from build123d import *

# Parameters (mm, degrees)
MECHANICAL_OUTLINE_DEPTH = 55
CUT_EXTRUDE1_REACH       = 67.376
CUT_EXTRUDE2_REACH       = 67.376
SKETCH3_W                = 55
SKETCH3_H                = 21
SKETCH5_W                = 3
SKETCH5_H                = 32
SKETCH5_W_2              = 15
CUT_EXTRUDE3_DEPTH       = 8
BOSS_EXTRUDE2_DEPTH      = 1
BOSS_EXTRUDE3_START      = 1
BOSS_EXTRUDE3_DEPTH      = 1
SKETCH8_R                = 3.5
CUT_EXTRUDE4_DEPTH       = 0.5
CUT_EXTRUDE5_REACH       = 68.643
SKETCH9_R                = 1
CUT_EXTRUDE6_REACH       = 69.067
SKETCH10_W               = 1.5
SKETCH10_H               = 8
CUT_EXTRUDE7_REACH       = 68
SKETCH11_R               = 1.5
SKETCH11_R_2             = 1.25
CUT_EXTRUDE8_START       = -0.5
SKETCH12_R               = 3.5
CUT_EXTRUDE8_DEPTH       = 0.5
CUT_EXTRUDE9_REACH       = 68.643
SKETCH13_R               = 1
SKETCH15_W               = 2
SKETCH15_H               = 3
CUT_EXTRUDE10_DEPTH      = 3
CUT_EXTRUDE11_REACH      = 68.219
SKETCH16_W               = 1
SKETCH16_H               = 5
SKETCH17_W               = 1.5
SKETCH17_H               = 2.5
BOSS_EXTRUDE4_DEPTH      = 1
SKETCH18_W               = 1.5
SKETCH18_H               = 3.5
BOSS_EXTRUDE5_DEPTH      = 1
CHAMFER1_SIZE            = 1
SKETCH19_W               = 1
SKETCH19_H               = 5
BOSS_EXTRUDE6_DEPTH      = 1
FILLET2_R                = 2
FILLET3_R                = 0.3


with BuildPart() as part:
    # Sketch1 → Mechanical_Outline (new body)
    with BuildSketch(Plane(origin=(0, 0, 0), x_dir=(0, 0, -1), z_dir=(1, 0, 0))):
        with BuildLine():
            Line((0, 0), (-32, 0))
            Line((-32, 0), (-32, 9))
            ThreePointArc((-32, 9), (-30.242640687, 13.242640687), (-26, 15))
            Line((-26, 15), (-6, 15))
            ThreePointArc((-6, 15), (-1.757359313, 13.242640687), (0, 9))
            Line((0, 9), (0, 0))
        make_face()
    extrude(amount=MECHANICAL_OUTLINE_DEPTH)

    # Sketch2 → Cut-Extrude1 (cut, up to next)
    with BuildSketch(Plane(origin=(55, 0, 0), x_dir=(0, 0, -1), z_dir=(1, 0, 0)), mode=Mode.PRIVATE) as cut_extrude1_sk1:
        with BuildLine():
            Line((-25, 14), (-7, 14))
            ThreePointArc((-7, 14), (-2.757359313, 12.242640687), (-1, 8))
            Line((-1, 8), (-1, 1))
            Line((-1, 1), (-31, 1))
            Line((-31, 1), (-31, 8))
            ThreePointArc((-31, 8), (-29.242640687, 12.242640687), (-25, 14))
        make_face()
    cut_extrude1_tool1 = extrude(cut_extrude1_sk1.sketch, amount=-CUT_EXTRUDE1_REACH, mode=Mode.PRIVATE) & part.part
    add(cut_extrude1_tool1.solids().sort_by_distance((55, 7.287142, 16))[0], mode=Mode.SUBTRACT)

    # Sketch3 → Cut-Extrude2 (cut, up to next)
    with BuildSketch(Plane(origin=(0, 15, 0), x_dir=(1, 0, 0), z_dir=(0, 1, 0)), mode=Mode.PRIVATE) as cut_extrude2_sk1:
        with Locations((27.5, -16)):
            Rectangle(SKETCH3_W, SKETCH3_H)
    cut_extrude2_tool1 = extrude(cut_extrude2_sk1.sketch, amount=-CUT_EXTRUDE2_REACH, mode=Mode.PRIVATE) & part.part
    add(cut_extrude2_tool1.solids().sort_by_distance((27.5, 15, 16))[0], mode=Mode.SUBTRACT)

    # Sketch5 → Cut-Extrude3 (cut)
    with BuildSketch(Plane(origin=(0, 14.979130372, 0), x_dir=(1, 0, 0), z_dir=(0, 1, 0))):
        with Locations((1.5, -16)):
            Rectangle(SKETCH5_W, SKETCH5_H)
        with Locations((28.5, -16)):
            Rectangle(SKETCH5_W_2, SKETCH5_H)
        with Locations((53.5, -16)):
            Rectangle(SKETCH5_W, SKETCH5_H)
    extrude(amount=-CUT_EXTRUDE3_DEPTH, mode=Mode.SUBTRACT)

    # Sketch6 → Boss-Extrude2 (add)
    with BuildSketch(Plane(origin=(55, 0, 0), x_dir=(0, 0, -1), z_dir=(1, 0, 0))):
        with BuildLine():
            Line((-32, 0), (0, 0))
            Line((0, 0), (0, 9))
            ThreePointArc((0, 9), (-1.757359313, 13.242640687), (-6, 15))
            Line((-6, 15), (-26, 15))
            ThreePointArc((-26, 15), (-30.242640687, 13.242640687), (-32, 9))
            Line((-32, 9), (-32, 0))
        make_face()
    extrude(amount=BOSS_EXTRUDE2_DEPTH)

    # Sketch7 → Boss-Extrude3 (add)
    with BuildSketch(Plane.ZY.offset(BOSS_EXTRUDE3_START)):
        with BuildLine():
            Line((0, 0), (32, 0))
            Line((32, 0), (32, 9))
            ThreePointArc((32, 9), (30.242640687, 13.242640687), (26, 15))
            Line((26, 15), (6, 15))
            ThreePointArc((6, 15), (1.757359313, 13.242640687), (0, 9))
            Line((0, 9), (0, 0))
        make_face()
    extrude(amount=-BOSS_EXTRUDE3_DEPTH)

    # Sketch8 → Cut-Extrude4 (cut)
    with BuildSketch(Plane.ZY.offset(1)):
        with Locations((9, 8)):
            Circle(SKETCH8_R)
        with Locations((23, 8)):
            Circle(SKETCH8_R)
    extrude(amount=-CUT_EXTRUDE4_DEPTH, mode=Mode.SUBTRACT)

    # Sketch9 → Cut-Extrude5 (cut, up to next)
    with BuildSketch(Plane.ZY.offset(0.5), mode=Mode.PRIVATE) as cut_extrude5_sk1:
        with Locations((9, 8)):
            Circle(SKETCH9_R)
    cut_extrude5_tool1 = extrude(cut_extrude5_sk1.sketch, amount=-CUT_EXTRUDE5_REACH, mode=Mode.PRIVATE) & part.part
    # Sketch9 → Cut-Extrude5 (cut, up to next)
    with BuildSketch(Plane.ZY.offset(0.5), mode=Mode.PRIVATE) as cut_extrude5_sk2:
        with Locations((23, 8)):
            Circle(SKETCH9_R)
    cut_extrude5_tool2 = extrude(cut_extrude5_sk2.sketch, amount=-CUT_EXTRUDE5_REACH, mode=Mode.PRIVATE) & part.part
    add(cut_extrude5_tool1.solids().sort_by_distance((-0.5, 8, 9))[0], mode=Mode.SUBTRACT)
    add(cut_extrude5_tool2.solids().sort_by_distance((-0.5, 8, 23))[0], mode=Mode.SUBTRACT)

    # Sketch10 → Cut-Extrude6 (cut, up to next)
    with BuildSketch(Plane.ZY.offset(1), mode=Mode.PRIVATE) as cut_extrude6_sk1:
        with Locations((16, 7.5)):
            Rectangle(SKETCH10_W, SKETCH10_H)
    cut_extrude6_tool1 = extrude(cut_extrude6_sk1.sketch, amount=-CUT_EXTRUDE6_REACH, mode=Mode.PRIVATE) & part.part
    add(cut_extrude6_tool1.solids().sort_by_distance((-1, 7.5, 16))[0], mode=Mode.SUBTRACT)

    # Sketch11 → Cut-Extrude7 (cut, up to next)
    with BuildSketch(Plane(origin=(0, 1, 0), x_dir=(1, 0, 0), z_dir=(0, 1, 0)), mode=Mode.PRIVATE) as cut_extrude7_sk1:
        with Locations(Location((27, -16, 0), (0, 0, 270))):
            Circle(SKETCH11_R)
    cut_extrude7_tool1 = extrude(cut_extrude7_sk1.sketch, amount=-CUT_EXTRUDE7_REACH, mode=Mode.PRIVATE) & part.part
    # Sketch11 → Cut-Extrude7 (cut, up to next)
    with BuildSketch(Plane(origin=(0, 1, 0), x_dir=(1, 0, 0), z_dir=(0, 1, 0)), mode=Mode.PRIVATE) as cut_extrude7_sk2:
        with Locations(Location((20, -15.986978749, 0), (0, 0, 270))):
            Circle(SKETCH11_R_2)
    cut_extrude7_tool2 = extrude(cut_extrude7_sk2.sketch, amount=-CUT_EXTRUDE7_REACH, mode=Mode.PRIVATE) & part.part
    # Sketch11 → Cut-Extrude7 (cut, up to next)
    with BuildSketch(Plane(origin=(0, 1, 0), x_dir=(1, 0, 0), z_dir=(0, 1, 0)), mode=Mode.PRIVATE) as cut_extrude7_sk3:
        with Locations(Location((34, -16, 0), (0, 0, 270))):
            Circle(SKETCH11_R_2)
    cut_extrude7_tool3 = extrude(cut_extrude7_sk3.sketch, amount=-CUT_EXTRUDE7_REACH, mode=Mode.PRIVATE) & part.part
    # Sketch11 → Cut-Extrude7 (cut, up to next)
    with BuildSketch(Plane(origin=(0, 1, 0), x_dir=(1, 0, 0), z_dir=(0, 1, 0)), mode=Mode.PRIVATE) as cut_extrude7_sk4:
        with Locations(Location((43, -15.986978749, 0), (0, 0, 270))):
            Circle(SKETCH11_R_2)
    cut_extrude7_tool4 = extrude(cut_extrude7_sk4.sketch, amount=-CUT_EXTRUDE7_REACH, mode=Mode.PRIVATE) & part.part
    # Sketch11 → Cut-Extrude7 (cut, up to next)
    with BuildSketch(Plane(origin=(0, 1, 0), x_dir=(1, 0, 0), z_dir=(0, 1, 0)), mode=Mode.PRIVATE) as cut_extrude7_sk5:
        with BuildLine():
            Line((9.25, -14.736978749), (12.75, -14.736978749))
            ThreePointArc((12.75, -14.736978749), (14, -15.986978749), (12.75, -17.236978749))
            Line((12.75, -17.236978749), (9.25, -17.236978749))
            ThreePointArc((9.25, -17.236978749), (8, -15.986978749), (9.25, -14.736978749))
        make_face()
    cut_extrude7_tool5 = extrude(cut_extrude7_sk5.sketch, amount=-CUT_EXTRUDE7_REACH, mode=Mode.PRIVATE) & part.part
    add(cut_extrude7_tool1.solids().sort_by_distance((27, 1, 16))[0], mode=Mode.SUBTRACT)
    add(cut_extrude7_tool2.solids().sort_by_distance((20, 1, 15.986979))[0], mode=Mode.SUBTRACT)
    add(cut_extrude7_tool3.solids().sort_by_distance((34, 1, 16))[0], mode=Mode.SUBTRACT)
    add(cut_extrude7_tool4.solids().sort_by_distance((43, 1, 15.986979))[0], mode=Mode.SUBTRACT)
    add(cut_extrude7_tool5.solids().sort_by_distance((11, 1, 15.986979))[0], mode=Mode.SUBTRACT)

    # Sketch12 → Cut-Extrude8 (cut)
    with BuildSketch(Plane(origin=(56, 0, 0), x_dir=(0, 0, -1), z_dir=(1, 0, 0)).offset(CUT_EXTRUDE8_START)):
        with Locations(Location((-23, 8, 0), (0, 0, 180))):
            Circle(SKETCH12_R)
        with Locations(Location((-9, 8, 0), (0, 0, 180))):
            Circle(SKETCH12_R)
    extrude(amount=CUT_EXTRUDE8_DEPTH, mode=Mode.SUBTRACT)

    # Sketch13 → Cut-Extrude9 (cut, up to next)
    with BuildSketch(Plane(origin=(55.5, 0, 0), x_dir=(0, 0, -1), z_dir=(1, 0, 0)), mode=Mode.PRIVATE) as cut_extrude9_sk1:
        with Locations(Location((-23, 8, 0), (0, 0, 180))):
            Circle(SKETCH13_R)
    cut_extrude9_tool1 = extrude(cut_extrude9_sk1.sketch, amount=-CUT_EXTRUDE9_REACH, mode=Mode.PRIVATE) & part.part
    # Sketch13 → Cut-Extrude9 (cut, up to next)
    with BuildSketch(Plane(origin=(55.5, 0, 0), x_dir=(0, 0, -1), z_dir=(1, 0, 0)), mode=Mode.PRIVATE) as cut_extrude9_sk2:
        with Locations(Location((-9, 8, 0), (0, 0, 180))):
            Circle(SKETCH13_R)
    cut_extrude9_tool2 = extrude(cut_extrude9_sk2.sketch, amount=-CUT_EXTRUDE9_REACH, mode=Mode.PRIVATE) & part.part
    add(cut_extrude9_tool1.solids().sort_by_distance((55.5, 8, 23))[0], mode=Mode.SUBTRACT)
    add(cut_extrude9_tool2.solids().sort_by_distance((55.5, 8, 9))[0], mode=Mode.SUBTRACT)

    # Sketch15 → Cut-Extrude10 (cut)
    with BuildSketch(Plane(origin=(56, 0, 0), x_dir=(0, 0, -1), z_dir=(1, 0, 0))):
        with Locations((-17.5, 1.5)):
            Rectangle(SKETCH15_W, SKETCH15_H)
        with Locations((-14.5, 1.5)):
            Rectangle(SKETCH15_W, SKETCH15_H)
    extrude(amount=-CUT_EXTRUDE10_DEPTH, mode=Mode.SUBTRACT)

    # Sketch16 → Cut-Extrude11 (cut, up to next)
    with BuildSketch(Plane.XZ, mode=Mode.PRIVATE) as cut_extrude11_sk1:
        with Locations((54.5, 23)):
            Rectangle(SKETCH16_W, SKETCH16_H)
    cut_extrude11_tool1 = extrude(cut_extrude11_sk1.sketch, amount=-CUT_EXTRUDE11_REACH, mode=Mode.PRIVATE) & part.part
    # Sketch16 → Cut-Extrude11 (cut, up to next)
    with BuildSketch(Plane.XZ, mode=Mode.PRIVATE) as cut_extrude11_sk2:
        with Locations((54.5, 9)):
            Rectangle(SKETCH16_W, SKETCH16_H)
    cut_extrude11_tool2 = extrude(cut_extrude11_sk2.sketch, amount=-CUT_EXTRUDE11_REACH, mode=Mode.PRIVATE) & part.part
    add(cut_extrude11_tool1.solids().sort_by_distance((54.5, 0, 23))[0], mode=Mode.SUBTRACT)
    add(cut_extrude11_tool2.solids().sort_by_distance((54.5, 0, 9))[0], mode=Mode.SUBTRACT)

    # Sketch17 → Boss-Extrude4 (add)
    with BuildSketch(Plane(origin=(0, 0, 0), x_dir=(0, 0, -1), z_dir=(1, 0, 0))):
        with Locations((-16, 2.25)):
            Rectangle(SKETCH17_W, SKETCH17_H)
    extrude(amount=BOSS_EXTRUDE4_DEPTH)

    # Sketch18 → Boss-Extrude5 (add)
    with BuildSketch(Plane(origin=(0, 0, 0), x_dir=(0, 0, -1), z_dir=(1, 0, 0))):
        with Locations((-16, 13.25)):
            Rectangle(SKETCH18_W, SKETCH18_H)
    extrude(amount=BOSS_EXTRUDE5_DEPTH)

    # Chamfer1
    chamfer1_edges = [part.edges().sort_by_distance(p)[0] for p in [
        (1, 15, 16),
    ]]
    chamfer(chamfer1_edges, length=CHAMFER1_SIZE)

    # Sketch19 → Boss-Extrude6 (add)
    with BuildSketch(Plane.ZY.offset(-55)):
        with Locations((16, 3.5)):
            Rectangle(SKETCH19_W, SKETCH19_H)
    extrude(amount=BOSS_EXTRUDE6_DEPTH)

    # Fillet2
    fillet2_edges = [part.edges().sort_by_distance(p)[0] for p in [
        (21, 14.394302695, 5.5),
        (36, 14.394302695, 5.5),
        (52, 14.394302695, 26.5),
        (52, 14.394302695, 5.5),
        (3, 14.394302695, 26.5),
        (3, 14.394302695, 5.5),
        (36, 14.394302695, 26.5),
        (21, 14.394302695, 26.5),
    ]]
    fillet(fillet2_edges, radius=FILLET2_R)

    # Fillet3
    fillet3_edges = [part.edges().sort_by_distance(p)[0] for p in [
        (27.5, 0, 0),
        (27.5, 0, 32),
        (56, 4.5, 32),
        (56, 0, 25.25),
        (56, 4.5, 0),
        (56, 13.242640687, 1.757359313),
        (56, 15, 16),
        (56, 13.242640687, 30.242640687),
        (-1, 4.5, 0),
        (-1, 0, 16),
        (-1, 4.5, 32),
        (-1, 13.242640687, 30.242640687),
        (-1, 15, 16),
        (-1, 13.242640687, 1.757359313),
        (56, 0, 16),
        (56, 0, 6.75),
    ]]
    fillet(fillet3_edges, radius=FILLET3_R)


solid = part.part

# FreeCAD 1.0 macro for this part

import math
import FreeCAD as App
import Part
import Sketcher

V = App.Vector
Q = App.Units.Quantity


def edges_at(feature, points):
    """Names of the edges that pass closest to the given points."""
    edges = feature.Shape.Edges
    near = lambda p: min(range(len(edges)), key=lambda i: edges[i].distToShape(Part.Vertex(*p))[0])
    return sorted({f"Edge{near(p) + 1}" for p in points})


def add_polygon(sketch, points):
    """Adds a closed chain of lines whose ends are joined by coincident constraints."""
    first, n = sketch.GeometryCount, len(points)
    for a, b in zip(points, points[1:] + points[:1]):
        sketch.addGeometry(Part.LineSegment(App.Vector(*a, 0), App.Vector(*b, 0)), False)
    for i in range(n):
        sketch.addConstraint(Sketcher.Constraint("Coincident", first + i, 2, first + (i + 1) % n, 1))

doc = App.newDocument("Part")
body = doc.addObject("PartDesign::Body", "Body")

# Sketch on YZ plane
sketch1 = body.newObject("Sketcher::SketchObject", "Sketch")
sketch1.AttachmentSupport = (doc.getObject("YZ_Plane"), [""])
sketch1.MapMode = "FlatFace"
sketch1.addGeometry([
    Part.LineSegment(V(0, 32, 0), V(0, 0, 0)),  # 0
    Part.LineSegment(V(0, 0, 0), V(9, 0, 0)),  # 1
    Part.ArcOfCircle(Part.Circle(V(9, 6, 0), V(0, 0, 1), 6), math.radians(-90), math.radians(0)),  # 2
    Part.LineSegment(V(15, 6, 0), V(15, 26, 0)),  # 3
    Part.ArcOfCircle(Part.Circle(V(9, 26, 0), V(0, 0, 1), 6), math.radians(0), math.radians(90)),  # 4
    Part.LineSegment(V(9, 32, 0), V(0, 32, 0)),  # 5
], False)
sketch1.addConstraint([
    Sketcher.Constraint("Coincident", 0, 2, 1, 1),
    Sketcher.Constraint("Tangent", 1, 2, 2, 1),
    Sketcher.Constraint("Tangent", 2, 2, 3, 1),
    Sketcher.Constraint("Tangent", 3, 2, 4, 1),
    Sketcher.Constraint("Tangent", 4, 2, 5, 1),
    Sketcher.Constraint("Coincident", 5, 2, 0, 1),
    Sketcher.Constraint("Vertical", 0),
    Sketcher.Constraint("Horizontal", 1),
    Sketcher.Constraint("Vertical", 3),
    Sketcher.Constraint("Horizontal", 5),
    Sketcher.Constraint("Coincident", 0, 2, -1, 1),
    Sketcher.Constraint("Equal", 2, 4),
    Sketcher.Constraint("Radius", 2, Q("6 mm")),
    Sketcher.Constraint("DistanceX", 1, 1, 1, 2, Q("9 mm")),
    Sketcher.Constraint("DistanceY", 0, 2, 0, 1, Q("32 mm")),
])
pad1 = body.newObject("PartDesign::Pad", "Pad")
pad1.Profile = sketch1
pad1.Length = 55

# Sketch on YZ plane
sketch2 = body.newObject("Sketcher::SketchObject", "Sketch001")
sketch2.AttachmentSupport = (doc.getObject("YZ_Plane"), [""])
sketch2.MapMode = "FlatFace"
sketch2.AttachmentOffset = App.Placement(V(0, 0, 55), App.Rotation())
sketch2.addGeometry([
    Part.LineSegment(V(14, 7, 0), V(14, 25, 0)),  # 0
    Part.ArcOfCircle(Part.Circle(V(8, 25, 0), V(0, 0, 1), 6), math.radians(0), math.radians(90)),  # 1
    Part.LineSegment(V(8, 31, 0), V(1, 31, 0)),  # 2
    Part.LineSegment(V(1, 31, 0), V(1, 1, 0)),  # 3
    Part.LineSegment(V(1, 1, 0), V(8, 1, 0)),  # 4
    Part.ArcOfCircle(Part.Circle(V(8, 7, 0), V(0, 0, 1), 6), math.radians(-90), math.radians(0)),  # 5
], False)
sketch2.addConstraint([
    Sketcher.Constraint("Tangent", 0, 2, 1, 1),
    Sketcher.Constraint("Tangent", 1, 2, 2, 1),
    Sketcher.Constraint("Coincident", 2, 2, 3, 1),
    Sketcher.Constraint("Coincident", 3, 2, 4, 1),
    Sketcher.Constraint("Tangent", 4, 2, 5, 1),
    Sketcher.Constraint("Tangent", 5, 2, 0, 1),
    Sketcher.Constraint("Vertical", 0),
    Sketcher.Constraint("Horizontal", 2),
    Sketcher.Constraint("Vertical", 3),
    Sketcher.Constraint("Horizontal", 4),
    Sketcher.Constraint("Equal", 1, 5),
    Sketcher.Constraint("Radius", 1, Q("6 mm")),
    Sketcher.Constraint("DistanceX", 2, 2, 2, 1, Q("7 mm")),
    Sketcher.Constraint("DistanceY", 0, 1, 0, 2, Q("18 mm")),
    Sketcher.Constraint("DistanceX", -1, 1, 1, 3, Q("8 mm")),
    Sketcher.Constraint("DistanceY", -1, 1, 1, 3, Q("25 mm")),
])
pocket1 = body.newObject("PartDesign::Pocket", "Pocket")
pocket1.Profile = sketch2
pocket1.Type = "UpToFirst"

# Sketch on XZ plane
sketch3 = body.newObject("Sketcher::SketchObject", "Sketch002")
sketch3.AttachmentSupport = (doc.getObject("XZ_Plane"), [""])
sketch3.MapMode = "FlatFace"
sketch3.AttachmentOffset = App.Placement(V(0, 0, -15), App.Rotation())
add_polygon(sketch3, [(0, 6), (0, 26), (55, 26), (55, 6)])  # lines 0-3
sketch3.addConstraint([
    Sketcher.Constraint("Vertical", 0),
    Sketcher.Constraint("Horizontal", 1),
    Sketcher.Constraint("Vertical", 2),
    Sketcher.Constraint("Horizontal", 3),
    Sketcher.Constraint("PointOnObject", 0, 2, -2),
    Sketcher.Constraint("DistanceX", 1, 1, 1, 2, Q("55 mm")),
    Sketcher.Constraint("DistanceY", 0, 1, 0, 2, Q("21 mm")),
    Sketcher.Constraint("DistanceY", -1, 1, 0, 2, Q("26.5 mm")),
])
pocket2 = body.newObject("PartDesign::Pocket", "Pocket001")
pocket2.Profile = sketch3
pocket2.Length = 1.190525
pocket2.Reversed = True

# Sketch on XZ plane
sketch4 = body.newObject("Sketcher::SketchObject", "Sketch003")
sketch4.AttachmentSupport = (doc.getObject("XZ_Plane"), [""])
sketch4.MapMode = "FlatFace"
sketch4.AttachmentOffset = App.Placement(V(0, 0, -14.97913), App.Rotation())
add_polygon(sketch4, [(0, 0), (0, 32), (3, 32), (3, 0)])  # lines 0-3
add_polygon(sketch4, [(21, 0), (21, 32), (36, 32), (36, 0)])  # lines 4-7
add_polygon(sketch4, [(52, 0), (52, 32), (55, 32), (55, 0)])  # lines 8-11
sketch4.addConstraint([
    Sketcher.Constraint("Vertical", 0),
    Sketcher.Constraint("Horizontal", 1),
    Sketcher.Constraint("Vertical", 2),
    Sketcher.Constraint("Horizontal", 3),
    Sketcher.Constraint("Vertical", 4),
    Sketcher.Constraint("Horizontal", 5),
    Sketcher.Constraint("Vertical", 6),
    Sketcher.Constraint("Horizontal", 7),
    Sketcher.Constraint("Vertical", 8),
    Sketcher.Constraint("Horizontal", 9),
    Sketcher.Constraint("Vertical", 10),
    Sketcher.Constraint("Horizontal", 11),
    Sketcher.Constraint("Coincident", 3, 2, -1, 1),
    Sketcher.Constraint("PointOnObject", 6, 2, -1),
    Sketcher.Constraint("PointOnObject", 10, 2, -1),
    Sketcher.Constraint("Horizontal", 1, 2, 4, 2),
    Sketcher.Constraint("Horizontal", 5, 2, 8, 2),
    Sketcher.Constraint("Equal", 3, 9),
    Sketcher.Constraint("DistanceX", 1, 1, 1, 2, Q("3 mm")),
    Sketcher.Constraint("DistanceX", 5, 1, 5, 2, Q("15 mm")),
    Sketcher.Constraint("DistanceY", 0, 1, 0, 2, Q("32 mm")),
    Sketcher.Constraint("DistanceX", -1, 1, 4, 2, Q("21 mm")),
    Sketcher.Constraint("DistanceX", -1, 1, 8, 2, Q("52 mm")),
])
pocket3 = body.newObject("PartDesign::Pocket", "Pocket002")
pocket3.Profile = sketch4
pocket3.Length = 8
pocket3.Reversed = True

# Sketch on YZ plane
sketch5 = body.newObject("Sketcher::SketchObject", "Sketch004")
sketch5.AttachmentSupport = (doc.getObject("YZ_Plane"), [""])
sketch5.MapMode = "FlatFace"
sketch5.AttachmentOffset = App.Placement(V(0, 0, 55), App.Rotation())
sketch5.addGeometry([
    Part.LineSegment(V(0, 32, 0), V(0, 0, 0)),  # 0
    Part.LineSegment(V(0, 0, 0), V(9, 0, 0)),  # 1
    Part.ArcOfCircle(Part.Circle(V(9, 6, 0), V(0, 0, 1), 6), math.radians(-90), math.radians(0)),  # 2
    Part.LineSegment(V(15, 6, 0), V(15, 26, 0)),  # 3
    Part.ArcOfCircle(Part.Circle(V(9, 26, 0), V(0, 0, 1), 6), math.radians(0), math.radians(90)),  # 4
    Part.LineSegment(V(9, 32, 0), V(0, 32, 0)),  # 5
], False)
sketch5.addConstraint([
    Sketcher.Constraint("Coincident", 0, 2, 1, 1),
    Sketcher.Constraint("Tangent", 1, 2, 2, 1),
    Sketcher.Constraint("Tangent", 2, 2, 3, 1),
    Sketcher.Constraint("Tangent", 3, 2, 4, 1),
    Sketcher.Constraint("Tangent", 4, 2, 5, 1),
    Sketcher.Constraint("Coincident", 5, 2, 0, 1),
    Sketcher.Constraint("Vertical", 0),
    Sketcher.Constraint("Horizontal", 1),
    Sketcher.Constraint("Vertical", 3),
    Sketcher.Constraint("Horizontal", 5),
    Sketcher.Constraint("Coincident", 0, 2, -1, 1),
    Sketcher.Constraint("Equal", 2, 4),
    Sketcher.Constraint("Radius", 2, Q("6 mm")),
    Sketcher.Constraint("DistanceX", 1, 1, 1, 2, Q("9 mm")),
    Sketcher.Constraint("DistanceY", 0, 2, 0, 1, Q("32 mm")),
])
pad2 = body.newObject("PartDesign::Pad", "Pad001")
pad2.Profile = sketch5
pad2.Length = 1

# Sketch on YZ plane
sketch6 = body.newObject("Sketcher::SketchObject", "Sketch005")
sketch6.AttachmentSupport = (doc.getObject("YZ_Plane"), [""])
sketch6.MapMode = "FlatFace"
sketch6.AttachmentOffset = App.Placement(V(0, 0, -1), App.Rotation())
sketch6.addGeometry([
    Part.LineSegment(V(0, 0, 0), V(0, 32, 0)),  # 0
    Part.LineSegment(V(0, 32, 0), V(9, 32, 0)),  # 1
    Part.ArcOfCircle(Part.Circle(V(9, 26, 0), V(0, 0, 1), 6), math.radians(0), math.radians(90)),  # 2
    Part.LineSegment(V(15, 26, 0), V(15, 6, 0)),  # 3
    Part.ArcOfCircle(Part.Circle(V(9, 6, 0), V(0, 0, 1), 6), math.radians(-90), math.radians(0)),  # 4
    Part.LineSegment(V(9, 0, 0), V(0, 0, 0)),  # 5
], False)
sketch6.addConstraint([
    Sketcher.Constraint("Coincident", 0, 2, 1, 1),
    Sketcher.Constraint("Tangent", 1, 2, 2, 2),
    Sketcher.Constraint("Tangent", 2, 1, 3, 1),
    Sketcher.Constraint("Tangent", 3, 2, 4, 2),
    Sketcher.Constraint("Tangent", 4, 1, 5, 1),
    Sketcher.Constraint("Coincident", 5, 2, 0, 1),
    Sketcher.Constraint("Vertical", 0),
    Sketcher.Constraint("Horizontal", 1),
    Sketcher.Constraint("Vertical", 3),
    Sketcher.Constraint("Horizontal", 5),
    Sketcher.Constraint("Coincident", 5, 2, -1, 1),
    Sketcher.Constraint("Equal", 2, 4),
    Sketcher.Constraint("Radius", 2, Q("6 mm")),
    Sketcher.Constraint("DistanceX", 1, 1, 1, 2, Q("9 mm")),
    Sketcher.Constraint("DistanceY", 0, 1, 0, 2, Q("32 mm")),
])
pad3 = body.newObject("PartDesign::Pad", "Pad002")
pad3.Profile = sketch6
pad3.Length = 1

# Sketch on YZ plane
sketch7 = body.newObject("Sketcher::SketchObject", "Sketch006")
sketch7.AttachmentSupport = (doc.getObject("YZ_Plane"), [""])
sketch7.MapMode = "FlatFace"
sketch7.AttachmentOffset = App.Placement(V(0, 0, -1), App.Rotation())
sketch7.addGeometry([
    Part.Circle(V(8, 9, 0), V(0, 0, 1), 3.5),
    Part.Circle(V(8, 23, 0), V(0, 0, 1), 3.5),
], False)
sketch7.addConstraint([
    Sketcher.Constraint("Equal", 0, 1),
    Sketcher.Constraint("Vertical", 0, 3, 1, 3),
    Sketcher.Constraint("Diameter", 0, Q("7 mm")),
    Sketcher.Constraint("DistanceX", -1, 1, 0, 3, Q("8 mm")),
    Sketcher.Constraint("DistanceY", -1, 1, 0, 3, Q("9 mm")),
    Sketcher.Constraint("DistanceY", -1, 1, 1, 3, Q("23 mm")),
])
pocket4 = body.newObject("PartDesign::Pocket", "Pocket003")
pocket4.Profile = sketch7
pocket4.Length = 0.5
pocket4.Reversed = True

# Sketch on YZ plane
sketch8 = body.newObject("Sketcher::SketchObject", "Sketch007")
sketch8.AttachmentSupport = (doc.getObject("YZ_Plane"), [""])
sketch8.MapMode = "FlatFace"
sketch8.AttachmentOffset = App.Placement(V(0, 0, -0.5), App.Rotation())
sketch8.addGeometry(Part.Circle(V(8, 9, 0), V(0, 0, 1), 1), False)
sketch8.addConstraint([
    Sketcher.Constraint("Diameter", 0, Q("2 mm")),
    Sketcher.Constraint("DistanceX", -1, 1, 0, 3, Q("8 mm")),
    Sketcher.Constraint("DistanceY", -1, 1, 0, 3, Q("9 mm")),
])
pocket5 = body.newObject("PartDesign::Pocket", "Pocket004")
pocket5.Profile = sketch8
pocket5.Type = "UpToFirst"
pocket5.Reversed = True

# Sketch on YZ plane
sketch9 = body.newObject("Sketcher::SketchObject", "Sketch008")
sketch9.AttachmentSupport = (doc.getObject("YZ_Plane"), [""])
sketch9.MapMode = "FlatFace"
sketch9.AttachmentOffset = App.Placement(V(0, 0, -0.5), App.Rotation())
sketch9.addGeometry(Part.Circle(V(8, 23, 0), V(0, 0, 1), 1), False)
sketch9.addConstraint([
    Sketcher.Constraint("Diameter", 0, Q("2 mm")),
    Sketcher.Constraint("DistanceX", -1, 1, 0, 3, Q("8 mm")),
    Sketcher.Constraint("DistanceY", -1, 1, 0, 3, Q("23 mm")),
])
pocket6 = body.newObject("PartDesign::Pocket", "Pocket005")
pocket6.Profile = sketch9
pocket6.Type = "UpToFirst"
pocket6.Reversed = True

# Sketch on YZ plane
sketch10 = body.newObject("Sketcher::SketchObject", "Sketch009")
sketch10.AttachmentSupport = (doc.getObject("YZ_Plane"), [""])
sketch10.MapMode = "FlatFace"
sketch10.AttachmentOffset = App.Placement(V(0, 0, -1), App.Rotation())
add_polygon(sketch10, [(11.5, 15.2), (3.5, 15.2), (3.5, 16.8), (11.5, 16.8)])  # lines 0-3
sketch10.addConstraint([
    Sketcher.Constraint("Horizontal", 0),
    Sketcher.Constraint("Vertical", 1),
    Sketcher.Constraint("Horizontal", 2),
    Sketcher.Constraint("Vertical", 3),
    Sketcher.Constraint("DistanceX", 0, 2, 0, 1, Q("8 mm")),
    Sketcher.Constraint("DistanceY", 1, 1, 1, 2, Q("1.5 mm")),
    Sketcher.Constraint("DistanceX", -1, 1, 0, 2, Q("3.5 mm")),
    Sketcher.Constraint("DistanceY", -1, 1, 0, 2, Q("15.25 mm")),
])
pocket7 = body.newObject("PartDesign::Pocket", "Pocket006")
pocket7.Profile = sketch10
pocket7.Type = "UpToFirst"
pocket7.Reversed = True

# Sketch on XZ plane
sketch11 = body.newObject("Sketcher::SketchObject", "Sketch010")
sketch11.AttachmentSupport = (doc.getObject("XZ_Plane"), [""])
sketch11.MapMode = "FlatFace"
sketch11.AttachmentOffset = App.Placement(V(0, 0, -1), App.Rotation())
sketch11.addGeometry(Part.Circle(V(27, 16, 0), V(0, 0, 1), 1.5), False)
sketch11.addConstraint([
    Sketcher.Constraint("Diameter", 0, Q("3 mm")),
    Sketcher.Constraint("DistanceX", -1, 1, 0, 3, Q("27 mm")),
    Sketcher.Constraint("DistanceY", -1, 1, 0, 3, Q("16 mm")),
])
pocket8 = body.newObject("PartDesign::Pocket", "Pocket007")
pocket8.Profile = sketch11
pocket8.Type = "UpToFirst"
pocket8.Reversed = True

# Sketch on XZ plane
sketch12 = body.newObject("Sketcher::SketchObject", "Sketch011")
sketch12.AttachmentSupport = (doc.getObject("XZ_Plane"), [""])
sketch12.MapMode = "FlatFace"
sketch12.AttachmentOffset = App.Placement(V(0, 0, -1), App.Rotation())
sketch12.addGeometry(Part.Circle(V(20, 16, 0), V(0, 0, 1), 1.2), False)
sketch12.addConstraint([
    Sketcher.Constraint("Diameter", 0, Q("2.5 mm")),
    Sketcher.Constraint("DistanceX", -1, 1, 0, 3, Q("20 mm")),
    Sketcher.Constraint("DistanceY", -1, 1, 0, 3, Q("15.986979 mm")),
])
pocket9 = body.newObject("PartDesign::Pocket", "Pocket008")
pocket9.Profile = sketch12
pocket9.Type = "UpToFirst"
pocket9.Reversed = True

# Sketch on XZ plane
sketch13 = body.newObject("Sketcher::SketchObject", "Sketch012")
sketch13.AttachmentSupport = (doc.getObject("XZ_Plane"), [""])
sketch13.MapMode = "FlatFace"
sketch13.AttachmentOffset = App.Placement(V(0, 0, -1), App.Rotation())
sketch13.addGeometry(Part.Circle(V(34, 16, 0), V(0, 0, 1), 1.2), False)
sketch13.addConstraint([
    Sketcher.Constraint("Diameter", 0, Q("2.5 mm")),
    Sketcher.Constraint("DistanceX", -1, 1, 0, 3, Q("34 mm")),
    Sketcher.Constraint("DistanceY", -1, 1, 0, 3, Q("16 mm")),
])
pocket10 = body.newObject("PartDesign::Pocket", "Pocket009")
pocket10.Profile = sketch13
pocket10.Type = "UpToFirst"
pocket10.Reversed = True

# Sketch on XZ plane
sketch14 = body.newObject("Sketcher::SketchObject", "Sketch013")
sketch14.AttachmentSupport = (doc.getObject("XZ_Plane"), [""])
sketch14.MapMode = "FlatFace"
sketch14.AttachmentOffset = App.Placement(V(0, 0, -1), App.Rotation())
sketch14.addGeometry(Part.Circle(V(43, 16, 0), V(0, 0, 1), 1.2), False)
sketch14.addConstraint([
    Sketcher.Constraint("Diameter", 0, Q("2.5 mm")),
    Sketcher.Constraint("DistanceX", -1, 1, 0, 3, Q("43 mm")),
    Sketcher.Constraint("DistanceY", -1, 1, 0, 3, Q("15.986979 mm")),
])
pocket11 = body.newObject("PartDesign::Pocket", "Pocket010")
pocket11.Profile = sketch14
pocket11.Type = "UpToFirst"
pocket11.Reversed = True

# Sketch on XZ plane
sketch15 = body.newObject("Sketcher::SketchObject", "Sketch014")
sketch15.AttachmentSupport = (doc.getObject("XZ_Plane"), [""])
sketch15.MapMode = "FlatFace"
sketch15.AttachmentOffset = App.Placement(V(0, 0, -1), App.Rotation())
sketch15.addGeometry([
    Part.LineSegment(V(12.8, 14.7, 0), V(9.2, 14.7, 0)),
    Part.ArcOfCircle(Part.Circle(V(9.2, 16, 0), V(0, 0, 1), 1.2), math.radians(90), math.radians(270)),
    Part.LineSegment(V(9.2, 17.2, 0), V(12.8, 17.2, 0)),
    Part.ArcOfCircle(Part.Circle(V(12.8, 16, 0), V(0, 0, 1), 1.2), math.radians(-90), math.radians(90)),
], False)
sketch15.addConstraint([
    Sketcher.Constraint("Tangent", 0, 2, 1, 2),
    Sketcher.Constraint("Tangent", 1, 1, 2, 1),
    Sketcher.Constraint("Tangent", 2, 2, 3, 2),
    Sketcher.Constraint("Tangent", 3, 1, 0, 1),
    Sketcher.Constraint("Horizontal", 0),
    Sketcher.Constraint("Horizontal", 2),
    Sketcher.Constraint("Radius", 1, Q("1.25 mm")),
    Sketcher.Constraint("DistanceX", 0, 2, 0, 1, Q("3.5 mm")),
    Sketcher.Constraint("DistanceX", -1, 1, 1, 3, Q("9.25 mm")),
    Sketcher.Constraint("DistanceY", -1, 1, 1, 3, Q("15.986979 mm")),
])
pocket12 = body.newObject("PartDesign::Pocket", "Pocket011")
pocket12.Profile = sketch15
pocket12.Type = "UpToFirst"
pocket12.Reversed = True

# Sketch on YZ plane
sketch16 = body.newObject("Sketcher::SketchObject", "Sketch015")
sketch16.AttachmentSupport = (doc.getObject("YZ_Plane"), [""])
sketch16.MapMode = "FlatFace"
sketch16.AttachmentOffset = App.Placement(V(0, 0, 55.5), App.Rotation())
sketch16.addGeometry([
    Part.Circle(V(8, 23, 0), V(0, 0, 1), 3.5),
    Part.Circle(V(8, 9, 0), V(0, 0, 1), 3.5),
], False)
sketch16.addConstraint([
    Sketcher.Constraint("Equal", 0, 1),
    Sketcher.Constraint("Vertical", 0, 3, 1, 3),
    Sketcher.Constraint("Diameter", 0, Q("7 mm")),
    Sketcher.Constraint("DistanceX", -1, 1, 0, 3, Q("8 mm")),
    Sketcher.Constraint("DistanceY", -1, 1, 0, 3, Q("23 mm")),
    Sketcher.Constraint("DistanceY", -1, 1, 1, 3, Q("9 mm")),
])
pocket13 = body.newObject("PartDesign::Pocket", "Pocket012")
pocket13.Profile = sketch16
pocket13.Length = 0.5
pocket13.Reversed = True

# Sketch on YZ plane
sketch17 = body.newObject("Sketcher::SketchObject", "Sketch016")
sketch17.AttachmentSupport = (doc.getObject("YZ_Plane"), [""])
sketch17.MapMode = "FlatFace"
sketch17.AttachmentOffset = App.Placement(V(0, 0, 55.5), App.Rotation())
sketch17.addGeometry(Part.Circle(V(8, 23, 0), V(0, 0, 1), 1), False)
sketch17.addConstraint([
    Sketcher.Constraint("Diameter", 0, Q("2 mm")),
    Sketcher.Constraint("DistanceX", -1, 1, 0, 3, Q("8 mm")),
    Sketcher.Constraint("DistanceY", -1, 1, 0, 3, Q("23 mm")),
])
pocket14 = body.newObject("PartDesign::Pocket", "Pocket013")
pocket14.Profile = sketch17
pocket14.Type = "UpToFirst"

# Sketch on YZ plane
sketch18 = body.newObject("Sketcher::SketchObject", "Sketch017")
sketch18.AttachmentSupport = (doc.getObject("YZ_Plane"), [""])
sketch18.MapMode = "FlatFace"
sketch18.AttachmentOffset = App.Placement(V(0, 0, 55.5), App.Rotation())
sketch18.addGeometry(Part.Circle(V(8, 9, 0), V(0, 0, 1), 1), False)
sketch18.addConstraint([
    Sketcher.Constraint("Diameter", 0, Q("2 mm")),
    Sketcher.Constraint("DistanceX", -1, 1, 0, 3, Q("8 mm")),
    Sketcher.Constraint("DistanceY", -1, 1, 0, 3, Q("9 mm")),
])
pocket15 = body.newObject("PartDesign::Pocket", "Pocket014")
pocket15.Profile = sketch18
pocket15.Type = "UpToFirst"

# Sketch on YZ plane
sketch19 = body.newObject("Sketcher::SketchObject", "Sketch018")
sketch19.AttachmentSupport = (doc.getObject("YZ_Plane"), [""])
sketch19.MapMode = "FlatFace"
sketch19.AttachmentOffset = App.Placement(V(0, 0, 56), App.Rotation())
add_polygon(sketch19, [(3, 18.5), (0, 18.5), (0, 16.5), (3, 16.5)])  # lines 0-3
add_polygon(sketch19, [(3, 15.5), (0, 15.5), (0, 13.5), (3, 13.5)])  # lines 4-7
sketch19.addConstraint([
    Sketcher.Constraint("Horizontal", 0),
    Sketcher.Constraint("Vertical", 1),
    Sketcher.Constraint("Horizontal", 2),
    Sketcher.Constraint("Vertical", 3),
    Sketcher.Constraint("Horizontal", 4),
    Sketcher.Constraint("Vertical", 5),
    Sketcher.Constraint("Horizontal", 6),
    Sketcher.Constraint("Vertical", 7),
    Sketcher.Constraint("PointOnObject", 0, 2, -2),
    Sketcher.Constraint("PointOnObject", 4, 2, -2),
    Sketcher.Constraint("Vertical", 3, 2, 6, 2),
    Sketcher.Constraint("Equal", 3, 5),
    Sketcher.Constraint("DistanceX", 0, 2, 0, 1, Q("3 mm")),
    Sketcher.Constraint("DistanceY", 1, 2, 1, 1, Q("2 mm")),
    Sketcher.Constraint("DistanceY", 4, 2, 1, 2, Q("1 mm")),
    Sketcher.Constraint("DistanceY", -1, 1, 0, 2, Q("18.5 mm")),
])
pocket16 = body.newObject("PartDesign::Pocket", "Pocket015")
pocket16.Profile = sketch19
pocket16.Length = 3

# Sketch on XZ plane
sketch20 = body.newObject("Sketcher::SketchObject", "Sketch019")
sketch20.AttachmentSupport = (doc.getObject("XZ_Plane"), [""])
sketch20.MapMode = "FlatFace"
add_polygon(sketch20, [(54, 25.5), (54, 20.5), (55, 20.5), (55, 25.5)])  # lines 0-3
sketch20.addConstraint([
    Sketcher.Constraint("Vertical", 0),
    Sketcher.Constraint("Horizontal", 1),
    Sketcher.Constraint("Vertical", 2),
    Sketcher.Constraint("Horizontal", 3),
    Sketcher.Constraint("DistanceX", 1, 1, 1, 2, Q("1 mm")),
    Sketcher.Constraint("DistanceY", 0, 2, 0, 1, Q("5 mm")),
    Sketcher.Constraint("DistanceX", -1, 1, 0, 2, Q("54 mm")),
    Sketcher.Constraint("DistanceY", -1, 1, 0, 2, Q("20.5 mm")),
])
pocket17 = body.newObject("PartDesign::Pocket", "Pocket016")
pocket17.Profile = sketch20
pocket17.Type = "UpToFirst"

# Sketch on XZ plane
sketch21 = body.newObject("Sketcher::SketchObject", "Sketch020")
sketch21.AttachmentSupport = (doc.getObject("XZ_Plane"), [""])
sketch21.MapMode = "FlatFace"
add_polygon(sketch21, [(54, 11.5), (54, 6.5), (55, 6.5), (55, 11.5)])  # lines 0-3
sketch21.addConstraint([
    Sketcher.Constraint("Vertical", 0),
    Sketcher.Constraint("Horizontal", 1),
    Sketcher.Constraint("Vertical", 2),
    Sketcher.Constraint("Horizontal", 3),
    Sketcher.Constraint("DistanceX", 1, 1, 1, 2, Q("1 mm")),
    Sketcher.Constraint("DistanceY", 0, 2, 0, 1, Q("5 mm")),
    Sketcher.Constraint("DistanceX", -1, 1, 0, 2, Q("54 mm")),
    Sketcher.Constraint("DistanceY", -1, 1, 0, 2, Q("6.5 mm")),
])
pocket18 = body.newObject("PartDesign::Pocket", "Pocket017")
pocket18.Profile = sketch21
pocket18.Type = "UpToFirst"

# Sketch on YZ plane
sketch22 = body.newObject("Sketcher::SketchObject", "Sketch021")
sketch22.AttachmentSupport = (doc.getObject("YZ_Plane"), [""])
sketch22.MapMode = "FlatFace"
add_polygon(sketch22, [(3.5, 16.8), (1, 16.8), (1, 15.2), (3.5, 15.2)])  # lines 0-3
sketch22.addConstraint([
    Sketcher.Constraint("Horizontal", 0),
    Sketcher.Constraint("Vertical", 1),
    Sketcher.Constraint("Horizontal", 2),
    Sketcher.Constraint("Vertical", 3),
    Sketcher.Constraint("DistanceX", 0, 2, 0, 1, Q("2.5 mm")),
    Sketcher.Constraint("DistanceY", 1, 2, 1, 1, Q("1.5 mm")),
    Sketcher.Constraint("DistanceX", -1, 1, 0, 2, Q("1 mm")),
    Sketcher.Constraint("DistanceY", -1, 1, 0, 2, Q("16.75 mm")),
])
pad4 = body.newObject("PartDesign::Pad", "Pad003")
pad4.Profile = sketch22
pad4.Length = 1

# Sketch on YZ plane
sketch23 = body.newObject("Sketcher::SketchObject", "Sketch022")
sketch23.AttachmentSupport = (doc.getObject("YZ_Plane"), [""])
sketch23.MapMode = "FlatFace"
add_polygon(sketch23, [(15, 16.8), (11.5, 16.8), (11.5, 15.2), (15, 15.2)])  # lines 0-3
sketch23.addConstraint([
    Sketcher.Constraint("Horizontal", 0),
    Sketcher.Constraint("Vertical", 1),
    Sketcher.Constraint("Horizontal", 2),
    Sketcher.Constraint("Vertical", 3),
    Sketcher.Constraint("DistanceX", 0, 2, 0, 1, Q("3.5 mm")),
    Sketcher.Constraint("DistanceY", 1, 2, 1, 1, Q("1.5 mm")),
    Sketcher.Constraint("DistanceX", -1, 1, 2, 2, Q("15 mm")),
    Sketcher.Constraint("DistanceY", -1, 1, 0, 2, Q("16.75 mm")),
])
pad5 = body.newObject("PartDesign::Pad", "Pad004")
pad5.Profile = sketch23
pad5.Length = 1
doc.recompute()

chamfer = body.newObject("PartDesign::Chamfer", "Chamfer")
chamfer.Base = (pad5, edges_at(pad5, [(1, 15, 16)]))
chamfer.Size = 1

# Sketch on YZ plane
sketch24 = body.newObject("Sketcher::SketchObject", "Sketch023")
sketch24.AttachmentSupport = (doc.getObject("YZ_Plane"), [""])
sketch24.MapMode = "FlatFace"
sketch24.AttachmentOffset = App.Placement(V(0, 0, 55), App.Rotation())
add_polygon(sketch24, [(6, 15.5), (1, 15.5), (1, 16.5), (6, 16.5)])  # lines 0-3
sketch24.addConstraint([
    Sketcher.Constraint("Horizontal", 0),
    Sketcher.Constraint("Vertical", 1),
    Sketcher.Constraint("Horizontal", 2),
    Sketcher.Constraint("Vertical", 3),
    Sketcher.Constraint("DistanceX", 0, 2, 0, 1, Q("5 mm")),
    Sketcher.Constraint("DistanceY", 1, 1, 1, 2, Q("1 mm")),
    Sketcher.Constraint("DistanceX", -1, 1, 0, 2, Q("1 mm")),
    Sketcher.Constraint("DistanceY", -1, 1, 0, 2, Q("15.5 mm")),
])
pad6 = body.newObject("PartDesign::Pad", "Pad005")
pad6.Profile = sketch24
pad6.Length = 1
pad6.Reversed = True
doc.recompute()

fillet = body.newObject("PartDesign::Fillet", "Fillet")
fillet.Base = (pad6, edges_at(pad6, [
    (21, 14.394, 5.5),
    (36, 14.394, 5.5),
    (52, 14.394, 26.5),
    (52, 14.394, 5.5),
    (3, 14.394, 26.5),
    (3, 14.394, 5.5),
    (36, 14.394, 26.5),
    (21, 14.394, 26.5),
]))
fillet.Radius = 2
doc.recompute()

fillet2 = body.newObject("PartDesign::Fillet", "Fillet001")
fillet2.Base = (fillet, edges_at(fillet, [
    (27.5, 0, 0),
    (27.5, 0, 32),
    (56, 4.5, 32),
    (56, 0, 25.25),
    (56, 4.5, 0),
    (56, 13.243, 1.757),
    (56, 15, 16),
    (56, 13.243, 30.243),
    (-1, 4.5, 0),
    (-1, 0, 16),
    (-1, 4.5, 32),
    (-1, 13.243, 30.243),
    (-1, 15, 16),
    (-1, 13.243, 1.757),
    (56, 0, 16),
    (56, 0, 6.75),
]))
fillet2.Radius = 0.3

doc.recompute()
